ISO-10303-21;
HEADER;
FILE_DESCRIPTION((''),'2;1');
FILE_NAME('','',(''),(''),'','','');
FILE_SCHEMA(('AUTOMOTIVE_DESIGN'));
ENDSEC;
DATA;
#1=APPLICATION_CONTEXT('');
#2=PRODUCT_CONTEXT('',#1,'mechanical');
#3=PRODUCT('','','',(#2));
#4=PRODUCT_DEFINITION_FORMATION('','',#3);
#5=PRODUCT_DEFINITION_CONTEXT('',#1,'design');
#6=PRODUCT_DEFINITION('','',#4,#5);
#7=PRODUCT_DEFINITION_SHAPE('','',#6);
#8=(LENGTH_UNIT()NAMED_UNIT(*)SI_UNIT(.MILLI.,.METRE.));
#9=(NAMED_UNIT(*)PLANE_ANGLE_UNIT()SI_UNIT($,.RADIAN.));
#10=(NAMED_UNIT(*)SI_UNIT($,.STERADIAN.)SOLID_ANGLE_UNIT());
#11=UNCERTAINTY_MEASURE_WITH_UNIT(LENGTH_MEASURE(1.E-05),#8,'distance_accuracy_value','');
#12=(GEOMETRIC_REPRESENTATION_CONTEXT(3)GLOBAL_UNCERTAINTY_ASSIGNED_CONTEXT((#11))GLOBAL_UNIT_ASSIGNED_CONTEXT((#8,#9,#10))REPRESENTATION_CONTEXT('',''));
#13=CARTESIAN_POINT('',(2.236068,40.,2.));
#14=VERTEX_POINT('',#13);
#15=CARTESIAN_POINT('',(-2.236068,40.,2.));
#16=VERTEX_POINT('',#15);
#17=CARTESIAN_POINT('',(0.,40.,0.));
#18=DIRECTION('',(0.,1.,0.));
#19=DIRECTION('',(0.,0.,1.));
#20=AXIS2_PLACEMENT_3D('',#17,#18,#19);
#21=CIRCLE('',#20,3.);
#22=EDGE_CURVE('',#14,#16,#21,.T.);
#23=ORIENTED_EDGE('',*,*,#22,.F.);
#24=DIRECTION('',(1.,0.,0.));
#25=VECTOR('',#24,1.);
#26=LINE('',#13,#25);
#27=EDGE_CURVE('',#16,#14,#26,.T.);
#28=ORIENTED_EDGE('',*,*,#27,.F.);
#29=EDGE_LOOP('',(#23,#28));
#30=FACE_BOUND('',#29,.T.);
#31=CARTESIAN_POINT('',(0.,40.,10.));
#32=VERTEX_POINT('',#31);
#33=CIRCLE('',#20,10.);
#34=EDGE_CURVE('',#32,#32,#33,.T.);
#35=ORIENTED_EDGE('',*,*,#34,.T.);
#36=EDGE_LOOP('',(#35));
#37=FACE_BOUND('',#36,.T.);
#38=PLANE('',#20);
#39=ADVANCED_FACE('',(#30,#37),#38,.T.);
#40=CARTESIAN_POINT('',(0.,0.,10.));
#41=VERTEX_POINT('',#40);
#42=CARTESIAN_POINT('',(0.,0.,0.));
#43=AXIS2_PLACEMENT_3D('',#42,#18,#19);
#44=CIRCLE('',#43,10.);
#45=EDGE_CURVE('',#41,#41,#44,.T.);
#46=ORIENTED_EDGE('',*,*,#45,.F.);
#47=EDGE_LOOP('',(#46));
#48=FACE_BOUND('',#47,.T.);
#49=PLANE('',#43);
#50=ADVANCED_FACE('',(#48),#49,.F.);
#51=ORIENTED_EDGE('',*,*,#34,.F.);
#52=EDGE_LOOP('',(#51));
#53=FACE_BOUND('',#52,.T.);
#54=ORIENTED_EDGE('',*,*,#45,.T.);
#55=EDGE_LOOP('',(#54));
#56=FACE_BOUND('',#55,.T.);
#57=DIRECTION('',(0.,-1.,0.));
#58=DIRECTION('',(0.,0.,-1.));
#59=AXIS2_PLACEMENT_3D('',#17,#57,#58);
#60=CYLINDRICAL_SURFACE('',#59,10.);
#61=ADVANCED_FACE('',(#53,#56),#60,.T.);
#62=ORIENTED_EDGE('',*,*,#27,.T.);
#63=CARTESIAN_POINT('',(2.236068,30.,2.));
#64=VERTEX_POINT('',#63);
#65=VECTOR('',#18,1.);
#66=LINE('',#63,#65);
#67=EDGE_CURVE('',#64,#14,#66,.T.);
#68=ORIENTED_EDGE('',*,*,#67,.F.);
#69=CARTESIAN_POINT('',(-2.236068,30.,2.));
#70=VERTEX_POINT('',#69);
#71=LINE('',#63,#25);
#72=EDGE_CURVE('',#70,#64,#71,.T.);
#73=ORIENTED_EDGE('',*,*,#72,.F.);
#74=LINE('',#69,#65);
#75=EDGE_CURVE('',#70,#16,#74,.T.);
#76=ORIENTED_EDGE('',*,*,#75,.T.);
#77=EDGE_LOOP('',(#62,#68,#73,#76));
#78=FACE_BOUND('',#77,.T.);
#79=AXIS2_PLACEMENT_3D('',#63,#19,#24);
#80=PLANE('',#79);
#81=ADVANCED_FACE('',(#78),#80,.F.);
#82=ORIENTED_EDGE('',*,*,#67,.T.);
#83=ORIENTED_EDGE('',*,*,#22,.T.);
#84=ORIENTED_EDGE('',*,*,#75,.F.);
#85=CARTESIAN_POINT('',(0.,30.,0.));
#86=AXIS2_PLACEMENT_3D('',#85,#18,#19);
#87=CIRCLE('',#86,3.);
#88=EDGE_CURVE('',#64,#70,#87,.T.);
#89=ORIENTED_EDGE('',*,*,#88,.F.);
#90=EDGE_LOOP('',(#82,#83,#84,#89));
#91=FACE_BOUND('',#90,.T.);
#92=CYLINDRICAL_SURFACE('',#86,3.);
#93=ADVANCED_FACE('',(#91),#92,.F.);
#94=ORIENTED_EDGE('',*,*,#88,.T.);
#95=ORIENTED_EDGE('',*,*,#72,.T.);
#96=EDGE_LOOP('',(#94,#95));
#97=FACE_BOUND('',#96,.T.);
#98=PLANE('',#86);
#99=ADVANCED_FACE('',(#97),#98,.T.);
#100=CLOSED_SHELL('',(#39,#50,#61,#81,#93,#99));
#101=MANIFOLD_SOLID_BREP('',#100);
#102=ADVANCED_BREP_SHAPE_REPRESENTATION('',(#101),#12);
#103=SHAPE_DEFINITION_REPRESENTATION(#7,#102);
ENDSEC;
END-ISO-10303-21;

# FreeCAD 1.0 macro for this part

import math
import FreeCAD as App
import Part
import Sketcher

V = App.Vector

doc = App.newDocument("Part")
params = doc.addObject("Spreadsheet::Sheet", "Params")
for row, (alias, value) in enumerate([
    ("sketch1_diameter", "20 mm"),
    ("pad1_length", "40 mm"),
    ("sketch2_radius", "3 mm"),
    ("pocket1_length", "10 mm"),
], start=1):
    params.set(f"A{row}", alias)
    params.set(f"B{row}", "=" + value)
    params.setAlias(f"B{row}", alias)

body = doc.addObject("PartDesign::Body", "Body")

sketch1 = body.newObject("Sketcher::SketchObject", "Sketch")
sketch1.AttachmentSupport = (doc.getObject("XZ_Plane"), [""])
sketch1.MapMode = "FlatFace"
sketch1.addGeometry(Part.Circle(V(0, 0, 0), V(0, 0, 1), 10), False)
sketch1.addConstraint(Sketcher.Constraint("Coincident", 0, 3, -1, 1))
sketch1.addConstraint(Sketcher.Constraint("Diameter", 0, 20.0))
sketch1.setExpression("Constraints[1]", "Params.sketch1_diameter")
pad1 = body.newObject("PartDesign::Pad", "Pad")
pad1.Profile = sketch1
pad1.setExpression("Length", "Params.pad1_length")
pad1.Reversed = True

sketch2 = body.newObject("Sketcher::SketchObject", "Sketch001")
sketch2.AttachmentSupport = (doc.getObject("XZ_Plane"), [""])
sketch2.MapMode = "FlatFace"
sketch2.AttachmentOffset = App.Placement(V(0, 0, -40), App.Rotation())
sketch2.addGeometry(Part.LineSegment(V(-2.2, 2, 0), V(2.2, 2, 0)), False)
sketch2.addGeometry(Part.ArcOfCircle(Part.Circle(V(0, 0, 0), V(0, 0, 1), 3), math.radians(138), math.radians(402)), False)
sketch2.addConstraint(Sketcher.Constraint("Coincident", 0, 1, 1, 1))
sketch2.addConstraint(Sketcher.Constraint("Coincident", 1, 2, 0, 2))
sketch2.addConstraint(Sketcher.Constraint("Horizontal", 0))
sketch2.addConstraint(Sketcher.Constraint("Coincident", 1, 3, -1, 1))
sketch2.addConstraint(Sketcher.Constraint("Radius", 1, 3.0))
sketch2.addConstraint(Sketcher.Constraint("DistanceY", -1, 1, 0, 1, 2.0))
sketch2.setExpression("Constraints[4]", "Params.sketch2_radius")
pocket1 = body.newObject("PartDesign::Pocket", "Pocket")
pocket1.Profile = sketch2
pocket1.setExpression("Length", "Params.pocket1_length")
pocket1.Reversed = True

doc.recompute()
